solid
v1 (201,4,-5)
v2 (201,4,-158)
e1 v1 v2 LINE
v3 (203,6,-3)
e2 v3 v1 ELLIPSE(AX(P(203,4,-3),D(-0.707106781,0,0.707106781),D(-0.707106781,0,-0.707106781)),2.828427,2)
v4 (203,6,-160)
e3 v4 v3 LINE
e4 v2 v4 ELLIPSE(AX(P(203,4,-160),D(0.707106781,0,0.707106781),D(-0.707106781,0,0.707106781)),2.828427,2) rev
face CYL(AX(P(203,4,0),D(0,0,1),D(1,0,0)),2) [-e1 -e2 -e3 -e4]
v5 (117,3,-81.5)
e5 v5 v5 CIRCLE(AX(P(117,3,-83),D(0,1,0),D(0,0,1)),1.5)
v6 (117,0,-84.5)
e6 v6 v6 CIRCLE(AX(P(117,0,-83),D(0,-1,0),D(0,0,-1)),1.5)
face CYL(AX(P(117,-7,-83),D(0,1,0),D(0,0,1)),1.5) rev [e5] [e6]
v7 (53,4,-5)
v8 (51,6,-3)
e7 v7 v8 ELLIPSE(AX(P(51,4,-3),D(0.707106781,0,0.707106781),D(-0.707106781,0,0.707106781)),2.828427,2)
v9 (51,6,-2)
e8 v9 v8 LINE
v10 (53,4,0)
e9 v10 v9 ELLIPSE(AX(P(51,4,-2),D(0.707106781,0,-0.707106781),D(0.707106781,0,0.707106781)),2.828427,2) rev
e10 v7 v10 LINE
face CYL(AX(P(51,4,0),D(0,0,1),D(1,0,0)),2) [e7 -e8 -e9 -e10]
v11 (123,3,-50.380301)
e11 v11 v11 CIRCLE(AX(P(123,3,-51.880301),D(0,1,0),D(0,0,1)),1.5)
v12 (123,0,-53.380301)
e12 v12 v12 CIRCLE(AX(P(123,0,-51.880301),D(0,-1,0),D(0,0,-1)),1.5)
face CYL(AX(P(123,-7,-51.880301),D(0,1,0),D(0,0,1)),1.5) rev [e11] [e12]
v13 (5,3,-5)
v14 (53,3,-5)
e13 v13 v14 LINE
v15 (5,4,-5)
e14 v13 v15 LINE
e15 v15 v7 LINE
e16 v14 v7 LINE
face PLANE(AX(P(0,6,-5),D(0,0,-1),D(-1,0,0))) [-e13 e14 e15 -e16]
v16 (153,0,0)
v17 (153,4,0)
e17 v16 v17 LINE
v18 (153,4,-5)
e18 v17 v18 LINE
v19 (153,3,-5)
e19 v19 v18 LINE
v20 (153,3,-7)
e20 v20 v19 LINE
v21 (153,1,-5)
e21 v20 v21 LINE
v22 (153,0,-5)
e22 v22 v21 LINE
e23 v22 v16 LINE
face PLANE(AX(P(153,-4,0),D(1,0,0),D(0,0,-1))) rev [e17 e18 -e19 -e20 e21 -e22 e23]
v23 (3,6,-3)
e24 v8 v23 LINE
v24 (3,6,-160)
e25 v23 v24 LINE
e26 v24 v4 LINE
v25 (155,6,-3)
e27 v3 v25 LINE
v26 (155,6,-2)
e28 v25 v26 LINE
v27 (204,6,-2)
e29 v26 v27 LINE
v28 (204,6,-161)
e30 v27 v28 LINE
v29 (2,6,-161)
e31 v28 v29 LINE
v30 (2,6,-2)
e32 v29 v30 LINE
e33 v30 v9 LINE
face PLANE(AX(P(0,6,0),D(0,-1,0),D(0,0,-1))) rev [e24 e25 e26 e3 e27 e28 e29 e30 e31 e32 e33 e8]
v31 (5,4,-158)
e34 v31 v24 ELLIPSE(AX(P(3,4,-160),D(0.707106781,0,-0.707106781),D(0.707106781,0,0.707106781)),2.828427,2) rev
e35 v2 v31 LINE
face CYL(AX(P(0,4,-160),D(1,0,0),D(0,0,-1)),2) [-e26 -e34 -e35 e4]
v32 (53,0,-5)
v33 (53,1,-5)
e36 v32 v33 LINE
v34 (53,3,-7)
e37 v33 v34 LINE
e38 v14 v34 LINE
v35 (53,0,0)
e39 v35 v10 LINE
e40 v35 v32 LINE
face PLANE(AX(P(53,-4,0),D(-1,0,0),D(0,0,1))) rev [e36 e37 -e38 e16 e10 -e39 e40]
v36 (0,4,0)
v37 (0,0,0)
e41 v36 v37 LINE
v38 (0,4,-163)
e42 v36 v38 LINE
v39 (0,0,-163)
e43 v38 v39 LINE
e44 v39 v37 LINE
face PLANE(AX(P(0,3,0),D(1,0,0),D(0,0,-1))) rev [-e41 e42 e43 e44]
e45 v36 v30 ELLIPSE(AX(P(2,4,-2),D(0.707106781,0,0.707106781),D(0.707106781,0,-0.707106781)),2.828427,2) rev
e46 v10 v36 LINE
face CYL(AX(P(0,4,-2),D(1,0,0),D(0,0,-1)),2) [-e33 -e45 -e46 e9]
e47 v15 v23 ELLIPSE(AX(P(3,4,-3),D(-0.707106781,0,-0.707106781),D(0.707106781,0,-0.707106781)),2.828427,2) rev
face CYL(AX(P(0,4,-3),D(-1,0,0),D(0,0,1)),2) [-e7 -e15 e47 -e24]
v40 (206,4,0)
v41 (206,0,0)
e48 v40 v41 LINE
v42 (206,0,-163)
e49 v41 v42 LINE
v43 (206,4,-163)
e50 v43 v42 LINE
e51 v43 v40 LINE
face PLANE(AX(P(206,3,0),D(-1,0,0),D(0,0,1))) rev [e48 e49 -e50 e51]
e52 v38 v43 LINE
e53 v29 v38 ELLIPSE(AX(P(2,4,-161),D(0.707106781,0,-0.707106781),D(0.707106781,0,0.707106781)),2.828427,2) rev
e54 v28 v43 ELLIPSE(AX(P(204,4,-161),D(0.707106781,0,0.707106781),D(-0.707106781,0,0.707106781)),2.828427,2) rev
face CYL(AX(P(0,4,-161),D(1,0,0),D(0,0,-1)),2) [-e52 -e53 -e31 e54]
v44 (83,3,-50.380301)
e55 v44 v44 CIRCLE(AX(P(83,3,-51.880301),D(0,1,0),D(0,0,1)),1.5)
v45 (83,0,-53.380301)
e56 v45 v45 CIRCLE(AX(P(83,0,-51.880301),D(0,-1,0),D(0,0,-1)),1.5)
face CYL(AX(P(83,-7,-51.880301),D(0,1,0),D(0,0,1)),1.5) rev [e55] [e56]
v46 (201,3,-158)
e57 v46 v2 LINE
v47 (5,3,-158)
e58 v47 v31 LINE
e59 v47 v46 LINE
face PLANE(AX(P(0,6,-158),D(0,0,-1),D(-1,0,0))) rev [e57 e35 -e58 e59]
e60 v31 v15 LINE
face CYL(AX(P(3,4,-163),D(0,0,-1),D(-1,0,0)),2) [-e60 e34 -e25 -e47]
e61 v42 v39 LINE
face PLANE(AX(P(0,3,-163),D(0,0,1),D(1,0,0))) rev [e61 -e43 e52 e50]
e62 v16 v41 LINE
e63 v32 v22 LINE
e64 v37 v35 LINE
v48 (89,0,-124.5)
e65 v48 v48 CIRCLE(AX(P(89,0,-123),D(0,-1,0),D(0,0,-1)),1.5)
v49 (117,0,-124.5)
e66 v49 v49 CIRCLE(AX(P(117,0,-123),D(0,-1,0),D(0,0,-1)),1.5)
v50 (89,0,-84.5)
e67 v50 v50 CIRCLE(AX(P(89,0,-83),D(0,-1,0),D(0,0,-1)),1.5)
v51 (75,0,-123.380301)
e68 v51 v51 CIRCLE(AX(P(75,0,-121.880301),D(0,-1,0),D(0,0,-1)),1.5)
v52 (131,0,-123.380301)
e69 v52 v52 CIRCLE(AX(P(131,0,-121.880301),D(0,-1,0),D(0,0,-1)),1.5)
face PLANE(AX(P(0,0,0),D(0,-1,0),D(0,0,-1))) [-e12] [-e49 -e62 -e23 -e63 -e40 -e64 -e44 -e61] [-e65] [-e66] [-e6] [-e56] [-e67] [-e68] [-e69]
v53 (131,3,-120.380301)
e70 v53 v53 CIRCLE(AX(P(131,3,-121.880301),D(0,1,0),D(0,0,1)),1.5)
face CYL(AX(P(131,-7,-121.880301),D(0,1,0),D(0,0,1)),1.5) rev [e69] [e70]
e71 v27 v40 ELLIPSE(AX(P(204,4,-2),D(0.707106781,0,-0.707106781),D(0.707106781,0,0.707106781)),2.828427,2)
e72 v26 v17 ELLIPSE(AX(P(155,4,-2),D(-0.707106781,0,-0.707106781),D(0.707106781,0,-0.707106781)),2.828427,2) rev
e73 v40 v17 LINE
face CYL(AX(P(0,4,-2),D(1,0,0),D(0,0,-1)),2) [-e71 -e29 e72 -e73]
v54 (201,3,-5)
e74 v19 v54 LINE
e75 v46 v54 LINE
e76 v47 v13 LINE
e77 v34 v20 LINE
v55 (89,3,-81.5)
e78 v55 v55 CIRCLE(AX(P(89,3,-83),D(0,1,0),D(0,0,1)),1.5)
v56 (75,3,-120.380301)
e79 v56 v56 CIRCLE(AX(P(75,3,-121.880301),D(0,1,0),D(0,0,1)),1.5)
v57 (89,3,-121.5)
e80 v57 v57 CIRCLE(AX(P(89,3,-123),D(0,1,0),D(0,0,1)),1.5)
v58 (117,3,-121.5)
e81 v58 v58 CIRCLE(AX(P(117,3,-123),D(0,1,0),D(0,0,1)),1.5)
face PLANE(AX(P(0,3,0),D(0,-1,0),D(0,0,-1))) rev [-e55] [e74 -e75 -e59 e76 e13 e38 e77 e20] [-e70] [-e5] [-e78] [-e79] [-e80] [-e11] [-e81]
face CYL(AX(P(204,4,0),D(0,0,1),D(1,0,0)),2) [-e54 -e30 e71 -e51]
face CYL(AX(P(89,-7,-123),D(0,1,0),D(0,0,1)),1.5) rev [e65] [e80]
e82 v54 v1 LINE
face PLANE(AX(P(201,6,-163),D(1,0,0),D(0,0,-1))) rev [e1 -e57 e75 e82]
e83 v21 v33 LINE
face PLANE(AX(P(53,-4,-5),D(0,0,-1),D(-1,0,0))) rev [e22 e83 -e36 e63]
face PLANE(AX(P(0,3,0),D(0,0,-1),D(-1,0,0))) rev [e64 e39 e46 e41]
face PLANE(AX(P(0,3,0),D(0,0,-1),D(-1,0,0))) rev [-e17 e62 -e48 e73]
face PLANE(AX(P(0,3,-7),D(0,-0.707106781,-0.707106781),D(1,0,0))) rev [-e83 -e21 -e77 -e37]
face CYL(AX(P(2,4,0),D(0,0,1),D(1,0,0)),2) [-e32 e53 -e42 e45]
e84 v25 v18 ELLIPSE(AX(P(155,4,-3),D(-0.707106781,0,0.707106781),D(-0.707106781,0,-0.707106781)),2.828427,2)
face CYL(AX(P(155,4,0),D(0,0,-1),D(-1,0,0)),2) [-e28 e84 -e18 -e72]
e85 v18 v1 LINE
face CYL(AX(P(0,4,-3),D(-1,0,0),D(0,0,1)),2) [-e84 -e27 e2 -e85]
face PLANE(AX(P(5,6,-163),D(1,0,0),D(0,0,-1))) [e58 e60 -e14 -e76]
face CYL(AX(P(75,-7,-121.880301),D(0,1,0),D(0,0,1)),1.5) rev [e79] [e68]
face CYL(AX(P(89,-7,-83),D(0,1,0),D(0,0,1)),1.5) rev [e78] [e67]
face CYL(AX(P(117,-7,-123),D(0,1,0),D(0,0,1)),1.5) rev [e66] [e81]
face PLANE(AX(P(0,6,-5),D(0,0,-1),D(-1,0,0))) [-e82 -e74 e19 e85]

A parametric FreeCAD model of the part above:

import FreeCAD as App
import Part
import Sketcher

V = App.Vector


def edges_at(feature, points):
    """Names of the edges that pass closest to the given points."""
    edges = feature.Shape.Edges
    near = lambda p: min(range(len(edges)), key=lambda i: edges[i].distToShape(Part.Vertex(*p))[0])
    return sorted({f"Edge{near(p) + 1}" for p in points})

doc = App.newDocument("Part")
body = doc.addObject("PartDesign::Body", "Body")

# Sketch on XZ plane
sketch1 = body.newObject("Sketcher::SketchObject", "Sketch")
sketch1.AttachmentSupport = (doc.getObject("XZ_Plane"), [""])
sketch1.MapMode = "FlatFace"
sketch1.addGeometry(Part.LineSegment(V(0, -163, 0), V(0, 0, 0)), False)
sketch1.addGeometry(Part.LineSegment(V(0, 0, 0), V(206, 0, 0)), False)
sketch1.addGeometry(Part.LineSegment(V(206, 0, 0), V(206, -163, 0)), False)
sketch1.addGeometry(Part.LineSegment(V(206, -163, 0), V(0, -163, 0)), False)
sketch1.addConstraint(Sketcher.Constraint("Coincident", 0, 2, 1, 1))
sketch1.addConstraint(Sketcher.Constraint("Coincident", 1, 2, 2, 1))
sketch1.addConstraint(Sketcher.Constraint("Coincident", 2, 2, 3, 1))
sketch1.addConstraint(Sketcher.Constraint("Coincident", 3, 2, 0, 1))
sketch1.addConstraint(Sketcher.Constraint("Vertical", 0))
sketch1.addConstraint(Sketcher.Constraint("Horizontal", 1))
sketch1.addConstraint(Sketcher.Constraint("Vertical", 2))
sketch1.addConstraint(Sketcher.Constraint("Horizontal", 3))
sketch1.addConstraint(Sketcher.Constraint("Coincident", 0, 2, -1, 1))
sketch1.addConstraint(Sketcher.Constraint("DistanceX", 1, 1, 1, 2, 206.0))
sketch1.addConstraint(Sketcher.Constraint("DistanceY", 0, 1, 0, 2, 163.0))
pad1 = body.newObject("PartDesign::Pad", "Pad")
pad1.Profile = sketch1
pad1.Length = 3
pad1.Reversed = True

# Sketch on XZ plane
sketch2 = body.newObject("Sketcher::SketchObject", "Sketch001")
sketch2.AttachmentSupport = (doc.getObject("XZ_Plane"), [""])
sketch2.MapMode = "FlatFace"
sketch2.AttachmentOffset = App.Placement(V(0, 0, -3), App.Rotation())
sketch2.addGeometry(Part.LineSegment(V(0, -163, 0), V(0, 0, 0)), False)
sketch2.addGeometry(Part.LineSegment(V(0, 0, 0), V(206, 0, 0)), False)
sketch2.addGeometry(Part.LineSegment(V(206, 0, 0), V(206, -163, 0)), False)
sketch2.addGeometry(Part.LineSegment(V(206, -163, 0), V(0, -163, 0)), False)
sketch2.addGeometry(Part.LineSegment(V(201, -5, 0), V(5, -5, 0)), False)
sketch2.addGeometry(Part.LineSegment(V(5, -5, 0), V(5, -158, 0)), False)
sketch2.addGeometry(Part.LineSegment(V(5, -158, 0), V(201, -158, 0)), False)
sketch2.addGeometry(Part.LineSegment(V(201, -158, 0), V(201, -5, 0)), False)
sketch2.addConstraint(Sketcher.Constraint("Coincident", 0, 2, 1, 1))
sketch2.addConstraint(Sketcher.Constraint("Coincident", 1, 2, 2, 1))
sketch2.addConstraint(Sketcher.Constraint("Coincident", 2, 2, 3, 1))
sketch2.addConstraint(Sketcher.Constraint("Coincident", 3, 2, 0, 1))
sketch2.addConstraint(Sketcher.Constraint("Coincident", 4, 2, 5, 1))
sketch2.addConstraint(Sketcher.Constraint("Coincident", 5, 2, 6, 1))
sketch2.addConstraint(Sketcher.Constraint("Coincident", 6, 2, 7, 1))
sketch2.addConstraint(Sketcher.Constraint("Coincident", 7, 2, 4, 1))
sketch2.addConstraint(Sketcher.Constraint("Vertical", 0))
sketch2.addConstraint(Sketcher.Constraint("Horizontal", 1))
sketch2.addConstraint(Sketcher.Constraint("Vertical", 2))
sketch2.addConstraint(Sketcher.Constraint("Horizontal", 3))
sketch2.addConstraint(Sketcher.Constraint("Horizontal", 4))
sketch2.addConstraint(Sketcher.Constraint("Vertical", 5))
sketch2.addConstraint(Sketcher.Constraint("Horizontal", 6))
sketch2.addConstraint(Sketcher.Constraint("Vertical", 7))
sketch2.addConstraint(Sketcher.Constraint("Coincident", 0, 2, -1, 1))
sketch2.addConstraint(Sketcher.Constraint("DistanceX", 1, 1, 1, 2, 206.0))
sketch2.addConstraint(Sketcher.Constraint("DistanceX", 4, 2, 4, 1, 196.0))
sketch2.addConstraint(Sketcher.Constraint("DistanceY", 0, 1, 0, 2, 163.0))
sketch2.addConstraint(Sketcher.Constraint("DistanceY", 5, 2, 5, 1, 153.0))
sketch2.addConstraint(Sketcher.Constraint("DistanceX", -1, 1, 4, 2, 5.0))
sketch2.addConstraint(Sketcher.Constraint("DistanceY", 4, 2, -1, 1, 5.0))
pad2 = body.newObject("PartDesign::Pad", "Pad001")
pad2.Profile = sketch2
pad2.Length = 3
pad2.Reversed = True

# Sketch on XZ plane
sketch3 = body.newObject("Sketcher::SketchObject", "Sketch002")
sketch3.AttachmentSupport = (doc.getObject("XZ_Plane"), [""])
sketch3.MapMode = "FlatFace"
sketch3.AttachmentOffset = App.Placement(V(0, 0, -6), App.Rotation())
sketch3.addGeometry(Part.LineSegment(V(53, -5, 0), V(53, 0, 0)), False)
sketch3.addGeometry(Part.LineSegment(V(53, 0, 0), V(153, 0, 0)), False)
sketch3.addGeometry(Part.LineSegment(V(153, 0, 0), V(153, -5, 0)), False)
sketch3.addGeometry(Part.LineSegment(V(153, -5, 0), V(53, -5, 0)), False)
sketch3.addConstraint(Sketcher.Constraint("Coincident", 0, 2, 1, 1))
sketch3.addConstraint(Sketcher.Constraint("Coincident", 1, 2, 2, 1))
sketch3.addConstraint(Sketcher.Constraint("Coincident", 2, 2, 3, 1))
sketch3.addConstraint(Sketcher.Constraint("Coincident", 3, 2, 0, 1))
sketch3.addConstraint(Sketcher.Constraint("Vertical", 0))
sketch3.addConstraint(Sketcher.Constraint("Horizontal", 1))
sketch3.addConstraint(Sketcher.Constraint("Vertical", 2))
sketch3.addConstraint(Sketcher.Constraint("Horizontal", 3))
sketch3.addConstraint(Sketcher.Constraint("PointOnObject", 0, 2, -1))
sketch3.addConstraint(Sketcher.Constraint("DistanceX", 1, 1, 1, 2, 100.0))
sketch3.addConstraint(Sketcher.Constraint("DistanceY", 0, 1, 0, 2, 5.0))
sketch3.addConstraint(Sketcher.Constraint("DistanceX", -1, 1, 0, 2, 53.0))
pocket1 = body.newObject("PartDesign::Pocket", "Pocket")
pocket1.Profile = sketch3
pocket1.Length = 10
pocket1.Reversed = True
doc.recompute()

fillet = body.newObject("PartDesign::Fillet", "Fillet")
fillet.Base = (pocket1, edges_at(pocket1, [
    (103, 6, -163),
    (26.5, 6, 0),
    (0, 6, -81.5),
    (201, 6, -81.5),
    (103, 6, -158),
    (5, 6, -81.5),
    (206, 6, -81.5),
    (29, 6, -5),
    (177, 6, -5),
    (179.5, 6, 0),
    (53, 6, -2.5),
    (153, 6, -2.5),
]))
fillet.Radius = 2
doc.recompute()

chamfer = body.newObject("PartDesign::Chamfer", "Chamfer")
chamfer.Base = (fillet, edges_at(fillet, [(103, 3, -5)]))
chamfer.Size = 2

# Sketch on XZ plane
sketch4 = body.newObject("Sketcher::SketchObject", "Sketch003")
sketch4.AttachmentSupport = (doc.getObject("XZ_Plane"), [""])
sketch4.MapMode = "FlatFace"
sketch4.AttachmentOffset = App.Placement(V(0, 0, -3), App.Rotation())
sketch4.addGeometry(Part.Circle(V(123, -51.9, 0), V(0, 0, 1), 1.5), False)
sketch4.addGeometry(Part.Circle(V(83, -51.9, 0), V(0, 0, 1), 1.5), False)
sketch4.addGeometry(Part.Circle(V(75, -121.9, 0), V(0, 0, 1), 1.5), False)
sketch4.addGeometry(Part.Circle(V(131, -121.9, 0), V(0, 0, 1), 1.5), False)
sketch4.addConstraint(Sketcher.Constraint("Equal", 0, 1))
sketch4.addConstraint(Sketcher.Constraint("Equal", 1, 2))
sketch4.addConstraint(Sketcher.Constraint("Equal", 2, 3))
sketch4.addConstraint(Sketcher.Constraint("Horizontal", 0, 3, 1, 3))
sketch4.addConstraint(Sketcher.Constraint("Horizontal", 2, 3, 3, 3))
sketch4.addConstraint(Sketcher.Constraint("Diameter", 0, 3.0))
sketch4.addConstraint(Sketcher.Constraint("DistanceX", -1, 1, 0, 3, 123.0))
sketch4.addConstraint(Sketcher.Constraint("DistanceX", -1, 1, 1, 3, 83.0))
sketch4.addConstraint(Sketcher.Constraint("DistanceX", -1, 1, 2, 3, 75.0))
sketch4.addConstraint(Sketcher.Constraint("DistanceX", -1, 1, 3, 3, 131.0))
sketch4.addConstraint(Sketcher.Constraint("DistanceY", 2, 3, 1, 3, 70.0))
sketch4.addConstraint(Sketcher.Constraint("DistanceY", 0, 3, -1, 1, 51.880301))
pocket2 = body.newObject("PartDesign::Pocket", "Pocket001")
pocket2.Profile = sketch4
pocket2.Length = 10
pocket2.Reversed = True

# Sketch on XZ plane
sketch5 = body.newObject("Sketcher::SketchObject", "Sketch004")
sketch5.AttachmentSupport = (doc.getObject("XZ_Plane"), [""])
sketch5.MapMode = "FlatFace"
sketch5.AttachmentOffset = App.Placement(V(0, 0, -3), App.Rotation())
sketch5.addGeometry(Part.Circle(V(89, -123, 0), V(0, 0, 1), 1.5), False)
sketch5.addGeometry(Part.Circle(V(117, -123, 0), V(0, 0, 1), 1.5), False)
sketch5.addGeometry(Part.Circle(V(89, -83, 0), V(0, 0, 1), 1.5), False)
sketch5.addGeometry(Part.Circle(V(117, -83, 0), V(0, 0, 1), 1.5), False)
sketch5.addConstraint(Sketcher.Constraint("Equal", 0, 1))
sketch5.addConstraint(Sketcher.Constraint("Equal", 1, 2))
sketch5.addConstraint(Sketcher.Constraint("Equal", 2, 3))
sketch5.addConstraint(Sketcher.Constraint("Horizontal", 0, 3, 1, 3))
sketch5.addConstraint(Sketcher.Constraint("Horizontal", 2, 3, 3, 3))
sketch5.addConstraint(Sketcher.Constraint("Vertical", 0, 3, 2, 3))
sketch5.addConstraint(Sketcher.Constraint("Vertical", 1, 3, 3, 3))
sketch5.addConstraint(Sketcher.Constraint("Diameter", 0, 3.0))
sketch5.addConstraint(Sketcher.Constraint("DistanceX", -1, 1, 0, 3, 89.0))
sketch5.addConstraint(Sketcher.Constraint("DistanceY", 0, 3, -1, 1, 123.0))
sketch5.addConstraint(Sketcher.Constraint("DistanceX", -1, 1, 1, 3, 117.0))
sketch5.addConstraint(Sketcher.Constraint("DistanceY", 2, 3, -1, 1, 83.0))
pocket3 = body.newObject("PartDesign::Pocket", "Pocket002")
pocket3.Profile = sketch5
pocket3.Length = 10
pocket3.Reversed = True

doc.recompute()
